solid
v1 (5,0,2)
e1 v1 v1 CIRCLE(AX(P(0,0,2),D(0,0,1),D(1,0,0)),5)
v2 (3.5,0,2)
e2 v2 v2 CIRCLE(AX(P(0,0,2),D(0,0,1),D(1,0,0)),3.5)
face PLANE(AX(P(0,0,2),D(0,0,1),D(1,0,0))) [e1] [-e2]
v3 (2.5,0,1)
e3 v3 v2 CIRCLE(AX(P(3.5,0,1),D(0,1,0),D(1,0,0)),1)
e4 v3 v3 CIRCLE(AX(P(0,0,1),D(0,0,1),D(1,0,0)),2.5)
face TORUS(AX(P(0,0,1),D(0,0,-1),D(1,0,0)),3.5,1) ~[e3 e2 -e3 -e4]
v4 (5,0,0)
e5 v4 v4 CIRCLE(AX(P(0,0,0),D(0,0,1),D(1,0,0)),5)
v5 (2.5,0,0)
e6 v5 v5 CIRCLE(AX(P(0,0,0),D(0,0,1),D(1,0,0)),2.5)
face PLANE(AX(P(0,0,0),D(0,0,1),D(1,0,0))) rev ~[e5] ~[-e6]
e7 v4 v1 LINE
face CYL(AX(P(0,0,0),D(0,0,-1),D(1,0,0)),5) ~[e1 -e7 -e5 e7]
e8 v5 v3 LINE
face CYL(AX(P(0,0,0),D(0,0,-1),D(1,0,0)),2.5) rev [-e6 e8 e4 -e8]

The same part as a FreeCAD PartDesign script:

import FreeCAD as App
import Part
import Sketcher
from FreeCAD import Vector


def edges_at(feature, points):
    """Names of the edges that pass closest to the given points."""
    edges = feature.Shape.Edges
    near = lambda p: min(range(len(edges)), key=lambda i: edges[i].distToShape(Part.Vertex(*p))[0])
    return sorted({f"Edge{near(p) + 1}" for p in points})

doc = App.newDocument("Part")
params = doc.addObject("Spreadsheet::Sheet", "Params")
for row, (alias, value) in enumerate([
    ("sketch1_diameter", "10 mm"),
    ("sketch1_diameter2", "5 mm"),
    ("pad1_length", "2 mm"),
    ("fillet_radius", "1 mm"),
], start=1):
    params.set(f"A{row}", alias)
    params.set(f"B{row}", "=" + value)
    params.setAlias(f"B{row}", alias)

body = doc.addObject("PartDesign::Body", "Body")

# Sketch on XY plane
sketch1 = body.newObject("Sketcher::SketchObject", "Sketch")
sketch1.AttachmentSupport = (doc.getObject("XY_Plane"), [""])
sketch1.MapMode = "FlatFace"
sketch1.addGeometry(Part.Circle(Vector(0, 0, 0), Vector(0, 0, 1), 5), False)
sketch1.addGeometry(Part.Circle(Vector(0, 0, 0), Vector(0, 0, 1), 2.5), False)
sketch1.addConstraint(Sketcher.Constraint("Coincident", 0, 3, -1, 1))
sketch1.addConstraint(Sketcher.Constraint("Coincident", 1, 3, -1, 1))
sketch1.addConstraint(Sketcher.Constraint("Diameter", 0, 10.0))
sketch1.addConstraint(Sketcher.Constraint("Diameter", 1, 5.0))
sketch1.setExpression("Constraints[2]", "Params.sketch1_diameter")
sketch1.setExpression("Constraints[3]", "Params.sketch1_diameter2")
pad1 = body.newObject("PartDesign::Pad", "Pad")
pad1.Profile = sketch1
pad1.setExpression("Length", "Params.pad1_length")
doc.recompute()

fillet = body.newObject("PartDesign::Fillet", "Fillet")
fillet.Base = (pad1, edges_at(pad1, [(-2.5, 0, 2)]))
fillet.setExpression("Radius", "Params.fillet_radius")

doc.recompute()
